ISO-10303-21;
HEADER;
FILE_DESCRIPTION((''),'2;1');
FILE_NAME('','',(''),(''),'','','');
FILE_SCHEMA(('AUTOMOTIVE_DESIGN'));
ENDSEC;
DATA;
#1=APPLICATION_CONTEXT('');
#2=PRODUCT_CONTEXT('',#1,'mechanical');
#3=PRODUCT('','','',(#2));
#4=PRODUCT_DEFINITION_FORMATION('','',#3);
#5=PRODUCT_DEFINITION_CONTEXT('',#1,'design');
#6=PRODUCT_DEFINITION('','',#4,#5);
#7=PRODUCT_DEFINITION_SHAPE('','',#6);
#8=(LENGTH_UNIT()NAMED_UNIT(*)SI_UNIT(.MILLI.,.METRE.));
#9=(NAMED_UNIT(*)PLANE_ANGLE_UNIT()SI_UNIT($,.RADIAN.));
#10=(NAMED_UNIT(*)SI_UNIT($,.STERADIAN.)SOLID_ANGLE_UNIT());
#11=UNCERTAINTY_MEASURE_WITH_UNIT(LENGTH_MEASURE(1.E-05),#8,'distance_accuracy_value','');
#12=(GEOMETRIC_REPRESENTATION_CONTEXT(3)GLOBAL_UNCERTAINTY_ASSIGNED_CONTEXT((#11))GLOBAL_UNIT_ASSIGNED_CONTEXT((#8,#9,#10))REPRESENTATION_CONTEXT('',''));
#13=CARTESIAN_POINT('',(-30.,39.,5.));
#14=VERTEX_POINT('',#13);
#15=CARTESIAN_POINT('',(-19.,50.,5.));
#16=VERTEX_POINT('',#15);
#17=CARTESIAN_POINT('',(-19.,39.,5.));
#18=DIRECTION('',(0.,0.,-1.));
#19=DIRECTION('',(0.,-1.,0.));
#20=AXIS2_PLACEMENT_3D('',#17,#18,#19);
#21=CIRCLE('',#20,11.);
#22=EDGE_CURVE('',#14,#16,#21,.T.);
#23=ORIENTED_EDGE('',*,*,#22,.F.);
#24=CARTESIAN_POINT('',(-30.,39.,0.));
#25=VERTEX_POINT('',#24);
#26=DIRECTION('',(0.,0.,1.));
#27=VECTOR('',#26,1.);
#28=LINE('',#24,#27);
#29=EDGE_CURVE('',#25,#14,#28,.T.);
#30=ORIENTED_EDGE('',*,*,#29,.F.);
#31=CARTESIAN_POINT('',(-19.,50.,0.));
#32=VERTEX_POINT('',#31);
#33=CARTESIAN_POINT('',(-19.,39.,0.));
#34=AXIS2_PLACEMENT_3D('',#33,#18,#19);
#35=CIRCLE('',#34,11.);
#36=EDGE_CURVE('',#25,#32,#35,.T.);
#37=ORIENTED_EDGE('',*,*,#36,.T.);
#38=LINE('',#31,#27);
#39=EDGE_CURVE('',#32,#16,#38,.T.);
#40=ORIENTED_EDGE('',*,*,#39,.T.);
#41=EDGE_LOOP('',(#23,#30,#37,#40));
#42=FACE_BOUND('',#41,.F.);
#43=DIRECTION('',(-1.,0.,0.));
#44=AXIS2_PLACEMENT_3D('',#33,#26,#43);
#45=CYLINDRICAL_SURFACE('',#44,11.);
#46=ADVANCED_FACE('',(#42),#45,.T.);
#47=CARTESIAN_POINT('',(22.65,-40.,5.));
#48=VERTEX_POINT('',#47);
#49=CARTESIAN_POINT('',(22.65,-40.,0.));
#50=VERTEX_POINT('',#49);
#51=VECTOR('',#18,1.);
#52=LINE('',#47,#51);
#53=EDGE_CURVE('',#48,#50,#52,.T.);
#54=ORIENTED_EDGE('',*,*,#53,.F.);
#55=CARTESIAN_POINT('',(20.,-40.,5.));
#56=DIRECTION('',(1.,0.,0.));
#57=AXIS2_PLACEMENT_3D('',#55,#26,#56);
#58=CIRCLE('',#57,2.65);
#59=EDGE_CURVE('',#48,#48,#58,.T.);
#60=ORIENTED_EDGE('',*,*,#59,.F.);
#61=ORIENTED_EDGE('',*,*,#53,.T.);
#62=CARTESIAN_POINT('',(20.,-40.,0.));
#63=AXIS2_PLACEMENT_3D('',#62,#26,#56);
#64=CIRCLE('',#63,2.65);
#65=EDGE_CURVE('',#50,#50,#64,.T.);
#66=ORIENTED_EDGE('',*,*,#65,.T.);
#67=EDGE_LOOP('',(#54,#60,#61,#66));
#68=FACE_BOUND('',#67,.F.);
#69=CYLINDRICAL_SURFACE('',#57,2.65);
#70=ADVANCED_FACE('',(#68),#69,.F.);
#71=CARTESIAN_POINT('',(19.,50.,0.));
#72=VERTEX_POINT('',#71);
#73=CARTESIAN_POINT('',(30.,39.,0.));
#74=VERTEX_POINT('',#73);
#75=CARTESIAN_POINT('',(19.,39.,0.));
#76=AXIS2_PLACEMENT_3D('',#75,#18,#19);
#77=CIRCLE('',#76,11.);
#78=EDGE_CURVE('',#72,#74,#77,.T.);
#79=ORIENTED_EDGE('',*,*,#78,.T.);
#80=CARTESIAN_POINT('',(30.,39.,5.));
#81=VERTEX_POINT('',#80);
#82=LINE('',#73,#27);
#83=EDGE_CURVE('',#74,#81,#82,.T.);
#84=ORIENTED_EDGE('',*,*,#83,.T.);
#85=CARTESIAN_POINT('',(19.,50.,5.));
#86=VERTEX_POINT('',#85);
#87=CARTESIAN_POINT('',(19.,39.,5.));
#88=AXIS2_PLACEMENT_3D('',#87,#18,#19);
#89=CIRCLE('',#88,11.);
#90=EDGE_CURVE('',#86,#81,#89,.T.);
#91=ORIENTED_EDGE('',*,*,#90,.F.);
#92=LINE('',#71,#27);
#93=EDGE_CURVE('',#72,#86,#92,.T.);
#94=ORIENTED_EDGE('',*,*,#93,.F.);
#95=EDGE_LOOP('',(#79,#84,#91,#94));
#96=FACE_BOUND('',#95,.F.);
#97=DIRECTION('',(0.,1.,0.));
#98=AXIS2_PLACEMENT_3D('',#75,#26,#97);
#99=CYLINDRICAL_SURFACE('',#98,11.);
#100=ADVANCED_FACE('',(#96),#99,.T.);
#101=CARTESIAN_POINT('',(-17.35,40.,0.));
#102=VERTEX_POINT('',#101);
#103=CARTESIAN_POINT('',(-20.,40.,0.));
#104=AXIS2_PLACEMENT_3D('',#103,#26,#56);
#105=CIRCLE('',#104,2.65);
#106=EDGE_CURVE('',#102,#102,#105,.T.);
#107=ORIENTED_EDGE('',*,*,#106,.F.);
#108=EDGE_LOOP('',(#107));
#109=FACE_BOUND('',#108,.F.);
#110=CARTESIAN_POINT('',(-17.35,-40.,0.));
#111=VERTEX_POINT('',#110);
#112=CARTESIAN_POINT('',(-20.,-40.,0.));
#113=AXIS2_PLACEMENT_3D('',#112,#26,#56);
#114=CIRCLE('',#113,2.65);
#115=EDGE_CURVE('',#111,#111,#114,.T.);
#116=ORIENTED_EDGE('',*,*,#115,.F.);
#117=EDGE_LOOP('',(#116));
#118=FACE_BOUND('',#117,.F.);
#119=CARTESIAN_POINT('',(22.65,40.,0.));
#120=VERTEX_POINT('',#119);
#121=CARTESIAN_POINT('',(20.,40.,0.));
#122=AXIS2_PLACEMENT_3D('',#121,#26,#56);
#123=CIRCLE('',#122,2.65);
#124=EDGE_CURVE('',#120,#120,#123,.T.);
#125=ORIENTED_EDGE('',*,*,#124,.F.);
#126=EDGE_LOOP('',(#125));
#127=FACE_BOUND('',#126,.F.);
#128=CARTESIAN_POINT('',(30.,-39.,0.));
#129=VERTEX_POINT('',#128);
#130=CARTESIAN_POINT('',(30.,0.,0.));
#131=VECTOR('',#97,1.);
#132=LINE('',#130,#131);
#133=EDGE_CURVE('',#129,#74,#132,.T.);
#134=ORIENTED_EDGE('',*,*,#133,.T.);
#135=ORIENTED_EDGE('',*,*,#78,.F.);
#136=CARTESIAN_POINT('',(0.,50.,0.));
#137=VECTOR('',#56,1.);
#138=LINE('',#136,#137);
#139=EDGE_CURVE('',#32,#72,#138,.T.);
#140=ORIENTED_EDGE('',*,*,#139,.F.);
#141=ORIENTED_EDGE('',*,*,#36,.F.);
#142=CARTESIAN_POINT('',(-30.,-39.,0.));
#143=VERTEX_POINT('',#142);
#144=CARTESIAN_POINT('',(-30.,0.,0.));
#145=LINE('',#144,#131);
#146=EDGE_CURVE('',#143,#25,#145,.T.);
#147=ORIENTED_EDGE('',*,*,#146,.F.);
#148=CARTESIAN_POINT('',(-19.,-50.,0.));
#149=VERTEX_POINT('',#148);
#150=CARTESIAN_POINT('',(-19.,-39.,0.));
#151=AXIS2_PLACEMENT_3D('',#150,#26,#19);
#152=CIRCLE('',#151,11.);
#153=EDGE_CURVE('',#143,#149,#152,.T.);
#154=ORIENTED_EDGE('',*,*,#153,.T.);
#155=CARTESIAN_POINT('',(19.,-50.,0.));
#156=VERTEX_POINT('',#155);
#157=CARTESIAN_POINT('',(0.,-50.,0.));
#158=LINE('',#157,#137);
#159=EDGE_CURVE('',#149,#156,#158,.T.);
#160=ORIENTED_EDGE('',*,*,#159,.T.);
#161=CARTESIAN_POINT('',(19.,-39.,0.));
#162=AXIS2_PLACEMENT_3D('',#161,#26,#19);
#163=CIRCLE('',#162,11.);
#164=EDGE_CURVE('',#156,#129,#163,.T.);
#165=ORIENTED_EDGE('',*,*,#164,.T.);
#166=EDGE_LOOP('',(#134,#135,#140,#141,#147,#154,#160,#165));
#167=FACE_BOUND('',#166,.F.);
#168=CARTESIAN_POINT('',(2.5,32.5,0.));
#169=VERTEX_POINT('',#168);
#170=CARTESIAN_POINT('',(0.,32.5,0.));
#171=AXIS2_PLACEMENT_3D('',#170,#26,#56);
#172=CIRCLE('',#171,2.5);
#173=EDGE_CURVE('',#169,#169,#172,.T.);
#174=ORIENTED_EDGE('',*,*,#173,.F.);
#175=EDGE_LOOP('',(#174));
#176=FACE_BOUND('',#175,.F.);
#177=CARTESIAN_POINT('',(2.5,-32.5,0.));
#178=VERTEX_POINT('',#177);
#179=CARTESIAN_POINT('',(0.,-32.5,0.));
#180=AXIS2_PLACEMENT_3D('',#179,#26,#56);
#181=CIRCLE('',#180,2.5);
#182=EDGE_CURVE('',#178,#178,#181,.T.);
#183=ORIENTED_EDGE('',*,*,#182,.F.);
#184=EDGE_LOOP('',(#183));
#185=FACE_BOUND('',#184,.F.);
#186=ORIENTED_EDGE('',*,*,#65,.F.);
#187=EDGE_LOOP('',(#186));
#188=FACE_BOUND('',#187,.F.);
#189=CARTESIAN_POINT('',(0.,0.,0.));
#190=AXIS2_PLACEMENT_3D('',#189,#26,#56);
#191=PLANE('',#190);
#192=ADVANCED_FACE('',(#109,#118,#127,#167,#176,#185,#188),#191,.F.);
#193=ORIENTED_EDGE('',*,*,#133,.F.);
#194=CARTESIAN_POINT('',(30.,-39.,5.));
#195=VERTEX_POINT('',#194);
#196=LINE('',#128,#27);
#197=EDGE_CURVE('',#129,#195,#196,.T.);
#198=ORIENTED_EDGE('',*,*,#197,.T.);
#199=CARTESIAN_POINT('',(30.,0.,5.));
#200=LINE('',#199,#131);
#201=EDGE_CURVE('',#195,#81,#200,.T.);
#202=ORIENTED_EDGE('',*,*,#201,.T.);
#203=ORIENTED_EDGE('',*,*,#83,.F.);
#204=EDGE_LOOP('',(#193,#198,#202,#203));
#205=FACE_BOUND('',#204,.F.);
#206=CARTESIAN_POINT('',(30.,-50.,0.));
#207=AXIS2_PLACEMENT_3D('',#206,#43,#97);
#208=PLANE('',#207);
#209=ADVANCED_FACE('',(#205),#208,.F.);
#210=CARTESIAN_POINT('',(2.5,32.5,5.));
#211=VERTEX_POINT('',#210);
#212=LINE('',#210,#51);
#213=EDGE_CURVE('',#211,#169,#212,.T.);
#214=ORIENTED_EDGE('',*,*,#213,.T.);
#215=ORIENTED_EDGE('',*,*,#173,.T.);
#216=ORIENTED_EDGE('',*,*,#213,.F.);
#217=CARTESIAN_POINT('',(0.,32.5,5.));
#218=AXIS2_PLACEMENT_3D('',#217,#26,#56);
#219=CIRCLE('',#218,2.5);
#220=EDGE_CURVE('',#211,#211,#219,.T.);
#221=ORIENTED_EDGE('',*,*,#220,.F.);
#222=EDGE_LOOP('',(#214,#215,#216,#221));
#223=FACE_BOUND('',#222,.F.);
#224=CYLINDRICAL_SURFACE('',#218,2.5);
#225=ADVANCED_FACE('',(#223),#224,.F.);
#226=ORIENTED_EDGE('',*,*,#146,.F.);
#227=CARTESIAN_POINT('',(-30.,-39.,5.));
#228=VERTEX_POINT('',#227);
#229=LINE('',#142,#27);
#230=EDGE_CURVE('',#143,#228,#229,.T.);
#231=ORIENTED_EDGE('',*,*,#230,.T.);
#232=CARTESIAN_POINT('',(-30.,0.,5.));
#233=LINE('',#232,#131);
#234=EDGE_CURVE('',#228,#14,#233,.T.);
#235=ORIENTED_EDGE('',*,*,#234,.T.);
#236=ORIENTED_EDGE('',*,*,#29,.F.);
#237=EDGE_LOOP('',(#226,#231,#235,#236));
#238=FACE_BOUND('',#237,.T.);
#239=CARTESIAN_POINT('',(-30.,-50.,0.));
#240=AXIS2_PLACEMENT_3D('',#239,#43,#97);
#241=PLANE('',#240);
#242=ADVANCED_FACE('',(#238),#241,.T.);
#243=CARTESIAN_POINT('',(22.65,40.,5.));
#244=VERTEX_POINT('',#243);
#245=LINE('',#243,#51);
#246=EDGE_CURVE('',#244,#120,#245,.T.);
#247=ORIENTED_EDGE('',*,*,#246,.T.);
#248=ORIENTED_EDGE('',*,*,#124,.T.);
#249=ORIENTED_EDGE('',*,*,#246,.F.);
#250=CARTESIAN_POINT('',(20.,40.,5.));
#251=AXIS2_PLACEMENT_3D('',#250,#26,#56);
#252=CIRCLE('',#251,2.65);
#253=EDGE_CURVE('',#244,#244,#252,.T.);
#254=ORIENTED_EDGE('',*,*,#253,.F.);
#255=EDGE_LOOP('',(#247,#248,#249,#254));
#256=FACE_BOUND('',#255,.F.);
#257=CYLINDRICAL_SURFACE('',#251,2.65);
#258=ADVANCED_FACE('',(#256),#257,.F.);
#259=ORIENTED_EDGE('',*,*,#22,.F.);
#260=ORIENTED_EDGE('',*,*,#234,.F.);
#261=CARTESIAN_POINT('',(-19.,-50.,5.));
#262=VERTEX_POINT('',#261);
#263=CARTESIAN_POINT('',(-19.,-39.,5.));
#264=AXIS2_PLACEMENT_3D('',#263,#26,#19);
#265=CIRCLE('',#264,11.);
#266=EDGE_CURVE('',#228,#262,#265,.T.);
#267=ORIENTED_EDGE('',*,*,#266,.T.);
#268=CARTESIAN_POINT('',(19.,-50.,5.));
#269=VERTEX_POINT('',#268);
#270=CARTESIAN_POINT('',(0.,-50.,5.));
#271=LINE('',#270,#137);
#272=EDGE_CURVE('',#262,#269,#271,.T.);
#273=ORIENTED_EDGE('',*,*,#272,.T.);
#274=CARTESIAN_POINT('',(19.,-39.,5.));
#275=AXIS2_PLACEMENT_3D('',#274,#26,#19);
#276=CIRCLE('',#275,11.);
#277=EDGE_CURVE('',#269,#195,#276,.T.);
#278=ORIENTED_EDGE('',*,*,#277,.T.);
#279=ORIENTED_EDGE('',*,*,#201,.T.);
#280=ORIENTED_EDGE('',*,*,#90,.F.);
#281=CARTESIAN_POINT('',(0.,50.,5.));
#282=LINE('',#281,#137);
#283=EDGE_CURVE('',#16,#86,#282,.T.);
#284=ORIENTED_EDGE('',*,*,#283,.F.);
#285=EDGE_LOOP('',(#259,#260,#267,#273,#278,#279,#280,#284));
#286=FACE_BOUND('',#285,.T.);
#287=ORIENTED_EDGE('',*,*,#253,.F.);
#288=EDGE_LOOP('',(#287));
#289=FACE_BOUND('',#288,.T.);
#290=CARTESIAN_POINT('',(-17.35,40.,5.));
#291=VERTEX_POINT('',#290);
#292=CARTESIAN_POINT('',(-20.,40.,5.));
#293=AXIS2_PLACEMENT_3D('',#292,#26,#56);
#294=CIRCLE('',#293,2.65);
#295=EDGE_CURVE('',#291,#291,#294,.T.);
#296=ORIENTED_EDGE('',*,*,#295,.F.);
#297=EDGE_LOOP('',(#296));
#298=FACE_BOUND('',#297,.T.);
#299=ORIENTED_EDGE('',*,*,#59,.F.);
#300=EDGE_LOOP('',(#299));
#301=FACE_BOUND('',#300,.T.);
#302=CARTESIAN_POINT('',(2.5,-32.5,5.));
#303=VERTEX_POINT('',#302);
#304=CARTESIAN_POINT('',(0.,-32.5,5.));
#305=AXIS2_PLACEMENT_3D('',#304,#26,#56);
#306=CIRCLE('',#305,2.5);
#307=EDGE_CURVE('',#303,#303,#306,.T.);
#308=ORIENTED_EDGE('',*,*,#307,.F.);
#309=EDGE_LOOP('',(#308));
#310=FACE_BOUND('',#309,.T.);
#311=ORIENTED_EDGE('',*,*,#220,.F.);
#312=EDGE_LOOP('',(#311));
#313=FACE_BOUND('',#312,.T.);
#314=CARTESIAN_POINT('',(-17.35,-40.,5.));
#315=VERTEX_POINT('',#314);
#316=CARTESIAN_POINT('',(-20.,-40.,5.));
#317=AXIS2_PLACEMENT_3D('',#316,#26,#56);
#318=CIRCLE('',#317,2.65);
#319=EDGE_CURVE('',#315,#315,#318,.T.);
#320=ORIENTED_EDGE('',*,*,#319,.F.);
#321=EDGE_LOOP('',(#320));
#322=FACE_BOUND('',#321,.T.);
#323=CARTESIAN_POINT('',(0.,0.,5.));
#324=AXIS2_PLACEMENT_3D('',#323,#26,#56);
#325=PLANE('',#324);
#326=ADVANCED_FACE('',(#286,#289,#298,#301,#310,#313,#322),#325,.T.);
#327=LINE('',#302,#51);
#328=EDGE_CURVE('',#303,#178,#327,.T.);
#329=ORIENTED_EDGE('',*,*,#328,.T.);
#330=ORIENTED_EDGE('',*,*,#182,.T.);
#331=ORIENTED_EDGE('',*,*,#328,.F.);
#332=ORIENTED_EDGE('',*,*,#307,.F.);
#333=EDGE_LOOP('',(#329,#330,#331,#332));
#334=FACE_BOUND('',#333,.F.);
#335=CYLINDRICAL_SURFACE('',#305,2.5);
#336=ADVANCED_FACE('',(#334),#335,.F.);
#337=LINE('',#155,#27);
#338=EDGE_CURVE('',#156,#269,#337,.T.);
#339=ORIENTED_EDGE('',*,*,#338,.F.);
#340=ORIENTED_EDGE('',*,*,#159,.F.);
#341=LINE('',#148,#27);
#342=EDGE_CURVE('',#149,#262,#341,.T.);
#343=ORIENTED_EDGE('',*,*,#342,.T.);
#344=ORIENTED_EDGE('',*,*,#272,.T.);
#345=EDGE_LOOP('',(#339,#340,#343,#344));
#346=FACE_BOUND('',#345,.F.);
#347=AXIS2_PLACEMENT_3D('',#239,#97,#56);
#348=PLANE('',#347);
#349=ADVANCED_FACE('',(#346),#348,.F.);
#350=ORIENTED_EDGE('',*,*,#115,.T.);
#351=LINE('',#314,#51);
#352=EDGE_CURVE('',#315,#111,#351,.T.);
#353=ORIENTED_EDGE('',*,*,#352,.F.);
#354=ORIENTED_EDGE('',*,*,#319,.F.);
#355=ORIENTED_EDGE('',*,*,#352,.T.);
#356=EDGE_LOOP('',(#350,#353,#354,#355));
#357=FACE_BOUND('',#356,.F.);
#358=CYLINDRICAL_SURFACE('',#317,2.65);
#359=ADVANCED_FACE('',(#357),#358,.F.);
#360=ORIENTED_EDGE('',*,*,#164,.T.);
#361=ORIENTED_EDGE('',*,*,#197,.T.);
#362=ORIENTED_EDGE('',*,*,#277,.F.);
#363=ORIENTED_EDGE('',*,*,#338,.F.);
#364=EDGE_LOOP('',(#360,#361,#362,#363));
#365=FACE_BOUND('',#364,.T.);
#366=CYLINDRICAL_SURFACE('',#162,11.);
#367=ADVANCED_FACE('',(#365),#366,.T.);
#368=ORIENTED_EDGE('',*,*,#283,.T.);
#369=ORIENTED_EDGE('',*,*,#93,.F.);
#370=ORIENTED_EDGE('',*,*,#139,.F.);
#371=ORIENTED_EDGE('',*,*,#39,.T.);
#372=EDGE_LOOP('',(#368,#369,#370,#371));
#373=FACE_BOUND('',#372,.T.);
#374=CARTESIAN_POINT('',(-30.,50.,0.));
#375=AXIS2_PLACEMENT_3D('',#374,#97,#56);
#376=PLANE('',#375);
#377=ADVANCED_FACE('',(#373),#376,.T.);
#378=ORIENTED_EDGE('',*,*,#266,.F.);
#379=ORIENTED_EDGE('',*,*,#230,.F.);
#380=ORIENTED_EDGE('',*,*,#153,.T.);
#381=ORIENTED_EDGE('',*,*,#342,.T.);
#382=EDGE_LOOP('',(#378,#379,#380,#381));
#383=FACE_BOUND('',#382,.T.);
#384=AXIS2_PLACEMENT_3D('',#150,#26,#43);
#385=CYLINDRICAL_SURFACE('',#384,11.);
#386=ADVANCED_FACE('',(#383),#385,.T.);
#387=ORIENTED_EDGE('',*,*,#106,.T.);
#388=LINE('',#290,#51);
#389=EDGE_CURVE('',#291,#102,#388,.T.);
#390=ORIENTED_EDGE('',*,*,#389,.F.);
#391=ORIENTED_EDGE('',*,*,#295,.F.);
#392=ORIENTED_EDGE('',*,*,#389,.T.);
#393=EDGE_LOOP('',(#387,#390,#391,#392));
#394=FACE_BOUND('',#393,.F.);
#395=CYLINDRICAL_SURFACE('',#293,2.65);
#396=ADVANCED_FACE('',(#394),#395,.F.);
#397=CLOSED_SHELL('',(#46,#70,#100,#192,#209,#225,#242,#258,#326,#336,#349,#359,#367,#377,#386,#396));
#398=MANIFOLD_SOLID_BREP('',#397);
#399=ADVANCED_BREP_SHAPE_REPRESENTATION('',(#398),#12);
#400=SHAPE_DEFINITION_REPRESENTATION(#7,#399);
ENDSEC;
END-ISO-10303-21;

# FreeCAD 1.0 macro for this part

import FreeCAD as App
import Part
import Sketcher

V = App.Vector


def edges_at(feature, points):
    """Names of the edges that pass closest to the given points."""
    edges = feature.Shape.Edges
    near = lambda p: min(range(len(edges)), key=lambda i: edges[i].distToShape(Part.Vertex(*p))[0])
    return sorted({f"Edge{near(p) + 1}" for p in points})


def add_polygon(sketch, points):
    """Adds a closed chain of lines whose ends are joined by coincident constraints."""
    first, n = sketch.GeometryCount, len(points)
    for a, b in zip(points, points[1:] + points[:1]):
        sketch.addGeometry(Part.LineSegment(App.Vector(*a, 0), App.Vector(*b, 0)), False)
    for i in range(n):
        sketch.addConstraint(Sketcher.Constraint("Coincident", first + i, 2, first + (i + 1) % n, 1))

doc = App.newDocument("Part")
body = doc.addObject("PartDesign::Body", "Body")

# Sketch on XY plane
sketch1 = doc.addObject("Sketcher::SketchObject", "Sketch")
body.addObject(sketch1)
sketch1.AttachmentSupport = (doc.XY_Plane, [""])
sketch1.MapMode = "FlatFace"
add_polygon(sketch1, [(-30, 50), (-30, -50), (30, -50), (30, 50)])  # lines 0-3
sketch1.addConstraint(Sketcher.Constraint("Vertical", 0))
sketch1.addConstraint(Sketcher.Constraint("Horizontal", 1))
sketch1.addConstraint(Sketcher.Constraint("Vertical", 2))
sketch1.addConstraint(Sketcher.Constraint("Horizontal", 3))
sketch1.addConstraint(Sketcher.Constraint("Symmetric", 0, 2, 2, 2, -1, 1))
sketch1.addConstraint(Sketcher.Constraint("DistanceX", 1, 1, 1, 2, 60.0))
sketch1.addConstraint(Sketcher.Constraint("DistanceY", 0, 2, 0, 1, 100.0))
pad1 = doc.addObject("PartDesign::Pad", "Pad")
body.addObject(pad1)
pad1.Profile = sketch1
pad1.Length = 5

# Sketch on XY plane
sketch2 = doc.addObject("Sketcher::SketchObject", "Sketch001")
body.addObject(sketch2)
sketch2.AttachmentSupport = (doc.XY_Plane, [""])
sketch2.MapMode = "FlatFace"
sketch2.AttachmentOffset = App.Placement(V(0, 0, 5), App.Rotation())
sketch2.addGeometry(Part.Circle(V(-20, 40, 0), V(0, 0, 1), 2.6), False)
sketch2.addGeometry(Part.Circle(V(20, 40, 0), V(0, 0, 1), 2.6), False)
sketch2.addGeometry(Part.Circle(V(-20, -40, 0), V(0, 0, 1), 2.6), False)
sketch2.addGeometry(Part.Circle(V(20, -40, 0), V(0, 0, 1), 2.6), False)
sketch2.addConstraint(Sketcher.Constraint("Equal", 0, 1))
sketch2.addConstraint(Sketcher.Constraint("Equal", 1, 2))
sketch2.addConstraint(Sketcher.Constraint("Equal", 2, 3))
sketch2.addConstraint(Sketcher.Constraint("Symmetric", 1, 3, 2, 3, -1, 1))
sketch2.addConstraint(Sketcher.Constraint("Symmetric", 0, 3, 3, 3, -1, 1))
sketch2.addConstraint(Sketcher.Constraint("Symmetric", 0, 3, 1, 3, -2))
sketch2.addConstraint(Sketcher.Constraint("Diameter", 0, 5.3))
sketch2.addConstraint(Sketcher.Constraint("DistanceX", 0, 3, -1, 1, 20.0))
sketch2.addConstraint(Sketcher.Constraint("DistanceY", -1, 1, 0, 3, 40.0))
pocket1 = doc.addObject("PartDesign::Pocket", "Pocket")
body.addObject(pocket1)
pocket1.Profile = sketch2
pocket1.Length = 5
doc.recompute()

fillet = doc.addObject("PartDesign::Fillet", "Fillet")
body.addObject(fillet)
fillet.Base = (pocket1, edges_at(pocket1, [
    (30, 50, 2.5),
    (30, -50, 2.5),
    (-30, 50, 2.5),
    (-30, -50, 2.5),
]))
fillet.Radius = 11

# Sketch on XY plane
sketch3 = doc.addObject("Sketcher::SketchObject", "Sketch002")
body.addObject(sketch3)
sketch3.AttachmentSupport = (doc.XY_Plane, [""])
sketch3.MapMode = "FlatFace"
sketch3.AttachmentOffset = App.Placement(V(0, 0, 5), App.Rotation())
sketch3.addGeometry(Part.Circle(V(0, 32.5, 0), V(0, 0, 1), 2.5), False)
sketch3.addGeometry(Part.Circle(V(0, -32.5, 0), V(0, 0, 1), 2.5), False)
sketch3.addConstraint(Sketcher.Constraint("Equal", 0, 1))
sketch3.addConstraint(Sketcher.Constraint("Symmetric", 0, 3, 1, 3, -1, 1))
sketch3.addConstraint(Sketcher.Constraint("PointOnObject", 0, 3, -2))
sketch3.addConstraint(Sketcher.Constraint("Diameter", 0, 5.0))
sketch3.addConstraint(Sketcher.Constraint("DistanceY", 1, 3, 0, 3, 65.0))
pocket2 = doc.addObject("PartDesign::Pocket", "Pocket001")
body.addObject(pocket2)
pocket2.Profile = sketch3
pocket2.Length = 5

doc.recompute()
